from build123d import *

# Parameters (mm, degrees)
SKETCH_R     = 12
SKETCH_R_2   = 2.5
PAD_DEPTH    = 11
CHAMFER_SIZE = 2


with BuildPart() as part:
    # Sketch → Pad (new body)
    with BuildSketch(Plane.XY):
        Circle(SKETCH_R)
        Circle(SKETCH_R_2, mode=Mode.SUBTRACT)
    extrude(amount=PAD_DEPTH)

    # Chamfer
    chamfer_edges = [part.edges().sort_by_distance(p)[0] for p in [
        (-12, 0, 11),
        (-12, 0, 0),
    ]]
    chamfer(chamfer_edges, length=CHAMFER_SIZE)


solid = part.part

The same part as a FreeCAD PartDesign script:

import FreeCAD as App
import Part
import Sketcher
from FreeCAD import Vector
Q = App.Units.Quantity


def edges_at(feature, points):
    """Names of the edges that pass closest to the given points."""
    edges = feature.Shape.Edges
    near = lambda p: min(range(len(edges)), key=lambda i: edges[i].distToShape(Part.Vertex(*p))[0])
    return sorted({f"Edge{near(p) + 1}" for p in points})

doc = App.newDocument("Part")
params = doc.addObject("Spreadsheet::Sheet", "Params")
for row, (alias, value) in enumerate([
    ("sketch1_diameter", "24 mm"),
    ("sketch1_diameter2", "5 mm"),
    ("pad1_length", "11 mm"),
    ("chamfer_size", "2 mm"),
], start=1):
    params.set(f"A{row}", alias)
    params.set(f"B{row}", "=" + value)
    params.setAlias(f"B{row}", alias)

body = doc.addObject("PartDesign::Body", "Body")

# Sketch on XY plane
sketch1 = doc.addObject("Sketcher::SketchObject", "Sketch")
body.addObject(sketch1)
sketch1.AttachmentSupport = (doc.XY_Plane, [""])
sketch1.MapMode = "FlatFace"
sketch1.addGeometry(Part.Circle(Vector(0, 0, 0), Vector(0, 0, 1), 12), False)
sketch1.addGeometry(Part.Circle(Vector(0, 0, 0), Vector(0, 0, 1), 2.5), False)
sketch1.addConstraint(Sketcher.Constraint("Coincident", 0, 3, -1, 1))
sketch1.addConstraint(Sketcher.Constraint("Coincident", 1, 3, -1, 1))
sketch1.addConstraint(Sketcher.Constraint("Diameter", 0, Q("24 mm")))
sketch1.addConstraint(Sketcher.Constraint("Diameter", 1, Q("5 mm")))
sketch1.setExpression("Constraints[2]", "Params.sketch1_diameter")
sketch1.setExpression("Constraints[3]", "Params.sketch1_diameter2")
pad1 = doc.addObject("PartDesign::Pad", "Pad")
body.addObject(pad1)
pad1.Profile = sketch1
pad1.setExpression("Length", "Params.pad1_length")
doc.recompute()

chamfer = doc.addObject("PartDesign::Chamfer", "Chamfer")
body.addObject(chamfer)
chamfer.Base = (pad1, edges_at(pad1, [(-12, 0, 11), (-12, 0, 0)]))
chamfer.setExpression("Size", "Params.chamfer_size")

doc.recompute()
